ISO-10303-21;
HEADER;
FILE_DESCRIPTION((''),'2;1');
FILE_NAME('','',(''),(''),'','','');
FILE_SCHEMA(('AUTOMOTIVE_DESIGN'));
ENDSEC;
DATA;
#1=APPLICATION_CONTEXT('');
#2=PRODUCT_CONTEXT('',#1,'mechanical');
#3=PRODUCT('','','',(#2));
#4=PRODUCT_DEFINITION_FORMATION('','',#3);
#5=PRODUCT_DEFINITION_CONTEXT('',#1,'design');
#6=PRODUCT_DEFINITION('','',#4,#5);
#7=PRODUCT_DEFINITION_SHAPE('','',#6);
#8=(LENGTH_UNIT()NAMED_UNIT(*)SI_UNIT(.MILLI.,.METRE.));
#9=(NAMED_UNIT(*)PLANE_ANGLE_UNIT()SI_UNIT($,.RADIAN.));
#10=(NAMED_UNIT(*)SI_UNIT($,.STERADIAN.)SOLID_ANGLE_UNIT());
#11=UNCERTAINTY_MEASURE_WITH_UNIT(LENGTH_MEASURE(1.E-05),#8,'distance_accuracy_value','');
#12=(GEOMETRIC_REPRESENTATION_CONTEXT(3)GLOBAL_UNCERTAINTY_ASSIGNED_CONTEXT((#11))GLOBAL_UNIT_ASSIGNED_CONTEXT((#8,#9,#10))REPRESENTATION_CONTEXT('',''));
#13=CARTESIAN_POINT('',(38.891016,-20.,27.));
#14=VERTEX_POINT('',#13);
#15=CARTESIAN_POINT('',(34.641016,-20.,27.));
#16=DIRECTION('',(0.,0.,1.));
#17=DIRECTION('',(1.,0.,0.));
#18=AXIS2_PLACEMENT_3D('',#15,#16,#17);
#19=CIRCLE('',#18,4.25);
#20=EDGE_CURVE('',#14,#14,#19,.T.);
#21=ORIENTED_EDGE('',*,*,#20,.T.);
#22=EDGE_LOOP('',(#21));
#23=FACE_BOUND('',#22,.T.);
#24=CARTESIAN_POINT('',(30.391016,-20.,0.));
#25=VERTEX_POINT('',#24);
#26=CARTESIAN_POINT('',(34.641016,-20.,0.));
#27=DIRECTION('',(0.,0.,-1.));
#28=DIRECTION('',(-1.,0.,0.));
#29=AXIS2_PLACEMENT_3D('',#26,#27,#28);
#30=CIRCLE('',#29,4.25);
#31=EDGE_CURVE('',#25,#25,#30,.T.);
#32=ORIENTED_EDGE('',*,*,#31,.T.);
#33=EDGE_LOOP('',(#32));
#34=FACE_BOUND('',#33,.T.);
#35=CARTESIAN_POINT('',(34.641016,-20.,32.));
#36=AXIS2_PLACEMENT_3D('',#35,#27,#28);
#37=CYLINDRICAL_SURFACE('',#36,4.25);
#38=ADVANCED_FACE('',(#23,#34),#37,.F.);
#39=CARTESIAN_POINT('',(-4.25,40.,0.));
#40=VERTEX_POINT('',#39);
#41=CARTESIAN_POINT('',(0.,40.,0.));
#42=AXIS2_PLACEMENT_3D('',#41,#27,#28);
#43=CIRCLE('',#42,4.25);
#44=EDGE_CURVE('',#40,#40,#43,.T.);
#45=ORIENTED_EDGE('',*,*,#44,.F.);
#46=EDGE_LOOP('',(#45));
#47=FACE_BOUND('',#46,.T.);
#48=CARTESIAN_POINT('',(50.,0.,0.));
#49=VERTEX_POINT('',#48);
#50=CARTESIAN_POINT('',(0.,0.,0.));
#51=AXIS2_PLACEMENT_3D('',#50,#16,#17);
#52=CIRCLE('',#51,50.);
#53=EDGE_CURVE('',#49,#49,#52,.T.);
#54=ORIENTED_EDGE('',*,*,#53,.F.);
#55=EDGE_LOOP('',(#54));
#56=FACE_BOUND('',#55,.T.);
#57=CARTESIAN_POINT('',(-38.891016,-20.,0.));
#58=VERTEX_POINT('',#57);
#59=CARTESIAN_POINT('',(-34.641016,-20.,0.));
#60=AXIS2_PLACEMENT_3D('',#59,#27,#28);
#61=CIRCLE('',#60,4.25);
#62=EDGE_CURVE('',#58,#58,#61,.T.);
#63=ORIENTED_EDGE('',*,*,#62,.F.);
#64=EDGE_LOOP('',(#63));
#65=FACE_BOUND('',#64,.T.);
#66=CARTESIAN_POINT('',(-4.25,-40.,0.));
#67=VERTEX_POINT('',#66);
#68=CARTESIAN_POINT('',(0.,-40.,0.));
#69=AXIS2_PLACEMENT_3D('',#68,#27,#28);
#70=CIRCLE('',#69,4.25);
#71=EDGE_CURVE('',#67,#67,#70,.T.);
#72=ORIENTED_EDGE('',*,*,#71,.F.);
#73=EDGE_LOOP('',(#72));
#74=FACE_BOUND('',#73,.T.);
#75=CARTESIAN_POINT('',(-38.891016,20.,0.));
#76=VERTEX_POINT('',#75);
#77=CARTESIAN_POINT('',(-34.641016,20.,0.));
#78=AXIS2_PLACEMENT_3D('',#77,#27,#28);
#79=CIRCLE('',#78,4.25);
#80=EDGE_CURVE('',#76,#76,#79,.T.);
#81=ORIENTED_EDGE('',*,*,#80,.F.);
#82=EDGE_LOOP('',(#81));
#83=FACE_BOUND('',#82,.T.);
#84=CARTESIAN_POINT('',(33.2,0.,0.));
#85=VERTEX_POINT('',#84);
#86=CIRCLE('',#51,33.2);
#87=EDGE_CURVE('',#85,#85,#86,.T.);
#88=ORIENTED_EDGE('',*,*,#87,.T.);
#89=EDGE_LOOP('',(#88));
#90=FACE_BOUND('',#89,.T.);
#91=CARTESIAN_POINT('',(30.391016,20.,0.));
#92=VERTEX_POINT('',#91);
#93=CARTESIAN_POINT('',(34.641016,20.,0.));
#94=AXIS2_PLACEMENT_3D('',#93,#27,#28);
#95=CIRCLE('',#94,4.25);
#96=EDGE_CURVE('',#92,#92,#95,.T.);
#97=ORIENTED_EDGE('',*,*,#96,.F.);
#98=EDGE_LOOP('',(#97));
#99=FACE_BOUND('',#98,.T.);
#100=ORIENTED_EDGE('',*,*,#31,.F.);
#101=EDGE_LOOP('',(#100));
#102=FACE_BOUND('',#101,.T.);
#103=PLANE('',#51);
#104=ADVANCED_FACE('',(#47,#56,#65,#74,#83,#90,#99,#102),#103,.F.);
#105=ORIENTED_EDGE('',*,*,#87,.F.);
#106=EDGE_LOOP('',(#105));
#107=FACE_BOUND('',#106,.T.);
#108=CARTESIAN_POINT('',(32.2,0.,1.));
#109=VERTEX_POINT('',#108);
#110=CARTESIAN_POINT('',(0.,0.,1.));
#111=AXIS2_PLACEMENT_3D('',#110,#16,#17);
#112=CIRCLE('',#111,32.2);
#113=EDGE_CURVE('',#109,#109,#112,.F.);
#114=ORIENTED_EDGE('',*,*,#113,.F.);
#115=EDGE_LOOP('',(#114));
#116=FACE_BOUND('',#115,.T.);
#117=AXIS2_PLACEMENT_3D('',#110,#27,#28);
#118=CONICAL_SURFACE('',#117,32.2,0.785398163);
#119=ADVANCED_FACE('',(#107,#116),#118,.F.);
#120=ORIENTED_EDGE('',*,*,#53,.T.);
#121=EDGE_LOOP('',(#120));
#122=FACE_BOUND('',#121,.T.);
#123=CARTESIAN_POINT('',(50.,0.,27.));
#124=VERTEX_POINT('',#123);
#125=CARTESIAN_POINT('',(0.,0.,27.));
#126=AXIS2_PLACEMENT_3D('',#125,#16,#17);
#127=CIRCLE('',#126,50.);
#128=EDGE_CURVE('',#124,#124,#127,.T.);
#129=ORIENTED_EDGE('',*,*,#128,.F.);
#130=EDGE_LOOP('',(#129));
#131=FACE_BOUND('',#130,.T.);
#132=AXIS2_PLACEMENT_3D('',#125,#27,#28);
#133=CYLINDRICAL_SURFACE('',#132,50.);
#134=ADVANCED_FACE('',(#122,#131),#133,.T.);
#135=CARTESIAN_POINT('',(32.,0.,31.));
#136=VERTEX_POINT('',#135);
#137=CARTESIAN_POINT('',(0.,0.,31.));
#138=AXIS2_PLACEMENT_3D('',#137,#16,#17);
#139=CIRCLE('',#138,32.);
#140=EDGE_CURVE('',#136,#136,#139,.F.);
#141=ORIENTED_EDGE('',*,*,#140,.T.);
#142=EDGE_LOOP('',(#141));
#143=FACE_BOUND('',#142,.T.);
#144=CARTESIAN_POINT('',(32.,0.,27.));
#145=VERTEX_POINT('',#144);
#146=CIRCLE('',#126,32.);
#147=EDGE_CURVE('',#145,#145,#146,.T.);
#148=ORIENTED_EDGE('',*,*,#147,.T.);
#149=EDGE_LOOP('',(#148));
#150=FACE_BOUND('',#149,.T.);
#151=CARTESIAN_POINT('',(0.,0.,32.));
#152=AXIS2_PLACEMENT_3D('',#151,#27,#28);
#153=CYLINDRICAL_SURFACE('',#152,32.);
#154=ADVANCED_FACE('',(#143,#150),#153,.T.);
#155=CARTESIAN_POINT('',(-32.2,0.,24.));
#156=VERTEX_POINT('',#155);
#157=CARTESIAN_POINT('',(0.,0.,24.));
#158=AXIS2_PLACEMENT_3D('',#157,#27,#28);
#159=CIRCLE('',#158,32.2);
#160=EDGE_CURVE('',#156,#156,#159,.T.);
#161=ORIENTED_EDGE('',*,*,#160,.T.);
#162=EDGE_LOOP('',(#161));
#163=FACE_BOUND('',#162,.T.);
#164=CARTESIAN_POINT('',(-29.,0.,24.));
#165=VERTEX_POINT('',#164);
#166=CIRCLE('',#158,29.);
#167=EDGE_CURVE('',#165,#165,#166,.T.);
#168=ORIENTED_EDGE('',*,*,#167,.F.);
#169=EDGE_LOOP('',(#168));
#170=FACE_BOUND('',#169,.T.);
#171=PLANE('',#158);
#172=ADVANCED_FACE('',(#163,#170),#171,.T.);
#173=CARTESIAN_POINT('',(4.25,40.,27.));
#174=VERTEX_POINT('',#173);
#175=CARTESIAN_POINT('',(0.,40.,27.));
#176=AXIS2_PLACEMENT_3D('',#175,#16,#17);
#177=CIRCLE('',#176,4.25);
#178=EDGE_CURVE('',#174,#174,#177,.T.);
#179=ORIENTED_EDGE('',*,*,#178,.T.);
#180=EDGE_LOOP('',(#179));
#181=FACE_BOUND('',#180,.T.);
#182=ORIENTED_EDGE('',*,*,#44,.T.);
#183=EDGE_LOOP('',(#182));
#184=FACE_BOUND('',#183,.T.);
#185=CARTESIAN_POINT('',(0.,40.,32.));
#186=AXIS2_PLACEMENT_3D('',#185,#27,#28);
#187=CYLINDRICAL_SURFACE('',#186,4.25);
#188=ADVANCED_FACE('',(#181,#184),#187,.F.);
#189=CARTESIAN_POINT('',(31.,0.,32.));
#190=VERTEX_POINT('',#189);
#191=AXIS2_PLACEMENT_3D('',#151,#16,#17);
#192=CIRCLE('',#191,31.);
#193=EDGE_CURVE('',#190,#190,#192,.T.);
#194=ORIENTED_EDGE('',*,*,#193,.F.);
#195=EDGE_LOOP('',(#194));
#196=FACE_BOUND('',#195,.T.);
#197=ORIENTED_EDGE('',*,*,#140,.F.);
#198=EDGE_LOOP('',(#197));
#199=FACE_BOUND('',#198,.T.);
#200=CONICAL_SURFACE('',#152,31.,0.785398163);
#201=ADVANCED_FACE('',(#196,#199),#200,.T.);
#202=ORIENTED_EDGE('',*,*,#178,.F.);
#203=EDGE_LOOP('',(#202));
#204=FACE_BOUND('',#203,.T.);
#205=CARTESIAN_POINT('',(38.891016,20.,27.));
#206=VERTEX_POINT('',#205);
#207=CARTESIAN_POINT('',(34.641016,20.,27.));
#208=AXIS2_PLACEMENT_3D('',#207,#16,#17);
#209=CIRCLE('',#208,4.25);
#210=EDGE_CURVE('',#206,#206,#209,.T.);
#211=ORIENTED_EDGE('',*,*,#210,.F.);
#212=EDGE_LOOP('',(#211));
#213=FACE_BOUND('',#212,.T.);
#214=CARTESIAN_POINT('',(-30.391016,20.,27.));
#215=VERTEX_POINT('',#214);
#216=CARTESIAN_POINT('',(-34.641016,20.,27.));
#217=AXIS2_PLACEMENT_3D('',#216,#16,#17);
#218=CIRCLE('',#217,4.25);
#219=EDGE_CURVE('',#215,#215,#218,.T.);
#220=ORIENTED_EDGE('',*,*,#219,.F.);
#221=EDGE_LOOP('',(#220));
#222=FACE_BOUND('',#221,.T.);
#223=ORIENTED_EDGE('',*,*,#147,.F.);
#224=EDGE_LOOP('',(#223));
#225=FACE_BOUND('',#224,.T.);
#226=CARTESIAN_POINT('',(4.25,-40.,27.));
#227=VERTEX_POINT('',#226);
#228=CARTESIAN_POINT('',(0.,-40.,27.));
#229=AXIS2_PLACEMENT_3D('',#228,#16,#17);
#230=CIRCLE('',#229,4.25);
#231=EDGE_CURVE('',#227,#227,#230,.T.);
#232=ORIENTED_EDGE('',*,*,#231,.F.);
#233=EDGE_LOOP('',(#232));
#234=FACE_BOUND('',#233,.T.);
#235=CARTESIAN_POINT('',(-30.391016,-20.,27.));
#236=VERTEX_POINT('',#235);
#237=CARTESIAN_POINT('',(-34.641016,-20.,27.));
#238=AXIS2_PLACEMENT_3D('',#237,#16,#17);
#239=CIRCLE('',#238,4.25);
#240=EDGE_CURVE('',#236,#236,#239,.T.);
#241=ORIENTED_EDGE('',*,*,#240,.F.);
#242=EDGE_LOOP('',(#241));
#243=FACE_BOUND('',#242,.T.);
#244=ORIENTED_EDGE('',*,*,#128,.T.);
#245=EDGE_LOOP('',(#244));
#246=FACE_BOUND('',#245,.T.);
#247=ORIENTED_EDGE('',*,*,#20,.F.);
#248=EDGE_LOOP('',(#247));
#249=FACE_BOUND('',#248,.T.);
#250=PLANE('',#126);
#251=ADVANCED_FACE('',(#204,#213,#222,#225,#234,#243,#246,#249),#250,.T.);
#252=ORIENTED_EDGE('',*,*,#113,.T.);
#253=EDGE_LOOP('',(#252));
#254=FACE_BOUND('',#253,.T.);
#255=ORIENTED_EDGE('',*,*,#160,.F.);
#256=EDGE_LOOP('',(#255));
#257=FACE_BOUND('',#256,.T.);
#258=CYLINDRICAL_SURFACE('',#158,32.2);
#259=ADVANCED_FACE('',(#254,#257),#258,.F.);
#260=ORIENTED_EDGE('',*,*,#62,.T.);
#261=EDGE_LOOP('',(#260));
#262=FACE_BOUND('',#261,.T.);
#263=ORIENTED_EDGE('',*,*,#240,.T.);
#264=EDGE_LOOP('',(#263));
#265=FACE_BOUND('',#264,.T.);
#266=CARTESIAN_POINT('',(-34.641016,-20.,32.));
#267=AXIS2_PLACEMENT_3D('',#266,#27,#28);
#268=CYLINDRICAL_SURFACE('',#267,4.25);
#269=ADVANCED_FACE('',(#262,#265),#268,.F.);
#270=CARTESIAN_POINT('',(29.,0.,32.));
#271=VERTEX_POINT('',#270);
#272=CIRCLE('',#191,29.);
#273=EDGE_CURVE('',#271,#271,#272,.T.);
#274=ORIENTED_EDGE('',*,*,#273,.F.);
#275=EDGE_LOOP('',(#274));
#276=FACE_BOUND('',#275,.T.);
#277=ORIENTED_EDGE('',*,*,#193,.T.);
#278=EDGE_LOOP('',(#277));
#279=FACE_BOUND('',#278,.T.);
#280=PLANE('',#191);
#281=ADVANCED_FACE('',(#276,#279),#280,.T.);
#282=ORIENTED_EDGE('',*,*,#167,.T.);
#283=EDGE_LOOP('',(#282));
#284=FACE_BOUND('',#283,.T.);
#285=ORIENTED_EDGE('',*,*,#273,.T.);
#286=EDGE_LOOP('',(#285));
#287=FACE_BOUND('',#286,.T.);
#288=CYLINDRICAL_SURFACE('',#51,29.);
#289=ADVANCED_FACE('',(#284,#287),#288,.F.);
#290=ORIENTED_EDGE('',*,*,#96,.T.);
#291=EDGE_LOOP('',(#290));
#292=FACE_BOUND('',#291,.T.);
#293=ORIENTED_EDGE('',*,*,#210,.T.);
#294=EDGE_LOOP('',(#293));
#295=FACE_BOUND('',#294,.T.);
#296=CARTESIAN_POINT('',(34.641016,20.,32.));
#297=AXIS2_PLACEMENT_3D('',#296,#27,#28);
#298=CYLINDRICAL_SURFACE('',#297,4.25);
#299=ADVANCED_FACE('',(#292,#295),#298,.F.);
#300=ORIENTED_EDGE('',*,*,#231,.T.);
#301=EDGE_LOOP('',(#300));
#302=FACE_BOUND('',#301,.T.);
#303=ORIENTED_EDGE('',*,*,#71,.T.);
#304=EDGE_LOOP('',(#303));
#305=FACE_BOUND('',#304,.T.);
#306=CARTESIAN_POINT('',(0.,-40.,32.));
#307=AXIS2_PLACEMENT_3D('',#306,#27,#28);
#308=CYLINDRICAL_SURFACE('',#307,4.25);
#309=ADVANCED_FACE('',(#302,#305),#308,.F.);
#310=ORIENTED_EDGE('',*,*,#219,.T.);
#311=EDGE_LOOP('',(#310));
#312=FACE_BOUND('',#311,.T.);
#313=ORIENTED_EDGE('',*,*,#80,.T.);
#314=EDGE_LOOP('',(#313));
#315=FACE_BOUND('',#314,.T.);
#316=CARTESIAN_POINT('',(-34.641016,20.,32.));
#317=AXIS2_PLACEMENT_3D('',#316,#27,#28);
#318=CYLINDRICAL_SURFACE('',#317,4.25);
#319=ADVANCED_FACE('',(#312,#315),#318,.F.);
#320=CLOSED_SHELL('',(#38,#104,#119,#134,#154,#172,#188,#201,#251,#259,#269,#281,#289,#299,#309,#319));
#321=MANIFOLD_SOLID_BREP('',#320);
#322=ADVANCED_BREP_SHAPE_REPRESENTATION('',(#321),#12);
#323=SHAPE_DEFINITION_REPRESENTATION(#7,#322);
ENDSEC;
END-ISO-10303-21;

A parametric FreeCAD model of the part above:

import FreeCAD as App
import Part
import Sketcher

V = App.Vector


def edges_at(feature, points):
    """Names of the edges that pass closest to the given points."""
    edges = feature.Shape.Edges
    near = lambda p: min(range(len(edges)), key=lambda i: edges[i].distToShape(Part.Vertex(*p))[0])
    return sorted({f"Edge{near(p) + 1}" for p in points})

doc = App.newDocument("Part")
body = doc.addObject("PartDesign::Body", "Body")

sketch1 = doc.addObject("Sketcher::SketchObject", "Sketch")
body.addObject(sketch1)
sketch1.AttachmentSupport = (doc.XY_Plane, [""])
sketch1.MapMode = "FlatFace"
sketch1.addGeometry(Part.Circle(V(0, 0, 0), V(0, 0, 1), 50), False)
sketch1.addConstraint([
    Sketcher.Constraint("Coincident", 0, 3, -1, 1),
    Sketcher.Constraint("Diameter", 0, 100.0),
])
pad1 = doc.addObject("PartDesign::Pad", "Pad")
body.addObject(pad1)
pad1.Profile = sketch1
pad1.Length = 27

sketch2 = doc.addObject("Sketcher::SketchObject", "Sketch001")
body.addObject(sketch2)
sketch2.AttachmentSupport = (doc.XY_Plane, [""])
sketch2.MapMode = "FlatFace"
sketch2.addGeometry(Part.Circle(V(0, 0, 0), V(0, 0, 1), 32), False)
sketch2.addConstraint([
    Sketcher.Constraint("Coincident", 0, 3, -1, 1),
    Sketcher.Constraint("Diameter", 0, 64.4),
])
pocket1 = doc.addObject("PartDesign::Pocket", "Pocket")
body.addObject(pocket1)
pocket1.Profile = sketch2
pocket1.Length = 24
pocket1.Reversed = True

sketch3 = doc.addObject("Sketcher::SketchObject", "Sketch002")
body.addObject(sketch3)
sketch3.AttachmentSupport = (doc.XY_Plane, [""])
sketch3.MapMode = "FlatFace"
sketch3.AttachmentOffset = App.Placement(V(0, 0, 27), App.Rotation())
sketch3.addGeometry(Part.Circle(V(0, 0, 0), V(0, 0, 1), 32), False)
sketch3.addConstraint([
    Sketcher.Constraint("Coincident", 0, 3, -1, 1),
    Sketcher.Constraint("Diameter", 0, 64.0),
])
pad2 = doc.addObject("PartDesign::Pad", "Pad001")
body.addObject(pad2)
pad2.Profile = sketch3
pad2.Length = 5

sketch4 = doc.addObject("Sketcher::SketchObject", "Sketch003")
body.addObject(sketch4)
sketch4.AttachmentSupport = (doc.XY_Plane, [""])
sketch4.MapMode = "FlatFace"
sketch4.AttachmentOffset = App.Placement(V(0, 0, 32), App.Rotation())
sketch4.addGeometry(Part.Circle(V(0, 0, 0), V(0, 0, 1), 29), False)
sketch4.addConstraint([
    Sketcher.Constraint("Coincident", 0, 3, -1, 1),
    Sketcher.Constraint("Diameter", 0, 58.0),
])
pocket2 = doc.addObject("PartDesign::Pocket", "Pocket001")
body.addObject(pocket2)
pocket2.Profile = sketch4
pocket2.Type = "ThroughAll"

sketch5 = doc.addObject("Sketcher::SketchObject", "Sketch004")
body.addObject(sketch5)
sketch5.AttachmentSupport = (doc.XY_Plane, [""])
sketch5.MapMode = "FlatFace"
sketch5.addGeometry([
    Part.Circle(V(0, 40, 0), V(0, 0, 1), 4.2),
    Part.Circle(V(-34.6, 20, 0), V(0, 0, 1), 4.2),
    Part.Circle(V(-34.6, -20, 0), V(0, 0, 1), 4.2),
    Part.Circle(V(0, -40, 0), V(0, 0, 1), 4.2),
    Part.Circle(V(34.6, -20, 0), V(0, 0, 1), 4.2),
    Part.Circle(V(34.6, 20, 0), V(0, 0, 1), 4.2),
], False)
sketch5.addConstraint([
    Sketcher.Constraint("Equal", 0, 1),
    Sketcher.Constraint("Equal", 1, 2),
    Sketcher.Constraint("Equal", 2, 3),
    Sketcher.Constraint("Equal", 3, 4),
    Sketcher.Constraint("Equal", 4, 5),
    Sketcher.Constraint("Symmetric", 0, 3, 3, 3, -1, 1),
    Sketcher.Constraint("Symmetric", 1, 3, 4, 3, -1, 1),
    Sketcher.Constraint("Symmetric", 2, 3, 5, 3, -1, 1),
    Sketcher.Constraint("Symmetric", 2, 3, 4, 3, -2),
    Sketcher.Constraint("PointOnObject", 0, 3, -2),
    Sketcher.Constraint("Diameter", 0, 8.5),
    Sketcher.Constraint("DistanceY", -1, 1, 0, 3, 40.0),
    Sketcher.Constraint("DistanceY", -1, 1, 1, 3, 20.0),
    Sketcher.Constraint("DistanceX", 1, 3, -1, 1, 34.641016),
])
pocket3 = doc.addObject("PartDesign::Pocket", "Pocket002")
body.addObject(pocket3)
pocket3.Profile = sketch5
pocket3.Type = "ThroughAll"
pocket3.Reversed = True
doc.recompute()

chamfer = doc.addObject("PartDesign::Chamfer", "Chamfer")
body.addObject(chamfer)
chamfer.Base = (pocket3, edges_at(pocket3, [(-32, 0, 32), (32.2, 0, 0)]))
chamfer.Size = 1

doc.recompute()
